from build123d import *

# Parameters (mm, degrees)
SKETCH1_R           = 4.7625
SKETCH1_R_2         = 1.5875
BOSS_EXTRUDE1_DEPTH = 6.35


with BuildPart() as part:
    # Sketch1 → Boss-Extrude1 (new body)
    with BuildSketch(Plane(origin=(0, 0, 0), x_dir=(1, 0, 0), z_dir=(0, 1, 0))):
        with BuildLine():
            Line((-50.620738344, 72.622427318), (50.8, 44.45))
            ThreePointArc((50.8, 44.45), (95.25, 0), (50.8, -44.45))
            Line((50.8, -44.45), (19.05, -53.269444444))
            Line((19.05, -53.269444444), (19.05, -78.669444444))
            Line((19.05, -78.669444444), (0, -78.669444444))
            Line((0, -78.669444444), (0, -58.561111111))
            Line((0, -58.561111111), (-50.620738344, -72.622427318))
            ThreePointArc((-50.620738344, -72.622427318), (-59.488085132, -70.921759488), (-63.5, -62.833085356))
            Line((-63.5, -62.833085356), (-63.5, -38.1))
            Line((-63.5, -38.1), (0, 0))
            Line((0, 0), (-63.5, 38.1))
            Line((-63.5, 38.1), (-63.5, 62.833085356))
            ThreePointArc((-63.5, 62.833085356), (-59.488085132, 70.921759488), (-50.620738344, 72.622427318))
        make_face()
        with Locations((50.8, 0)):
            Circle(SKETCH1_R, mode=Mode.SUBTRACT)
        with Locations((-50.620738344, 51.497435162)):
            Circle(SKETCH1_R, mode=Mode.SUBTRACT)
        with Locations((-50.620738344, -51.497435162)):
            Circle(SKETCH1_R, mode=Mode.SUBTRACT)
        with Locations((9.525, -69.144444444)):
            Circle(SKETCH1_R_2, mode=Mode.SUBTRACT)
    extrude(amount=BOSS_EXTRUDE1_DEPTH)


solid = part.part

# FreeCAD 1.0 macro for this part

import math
import FreeCAD as App
import Part
import Sketcher
Q = App.Units.Quantity

doc = App.newDocument("Part")
body = doc.addObject("PartDesign::Body", "Body")

# Sketch on XZ plane
sketch1 = body.newObject("Sketcher::SketchObject", "Sketch")
sketch1.AttachmentSupport = (doc.getObject("XZ_Plane"), [""])
sketch1.MapMode = "FlatFace"
sketch1.addGeometry([
    Part.LineSegment(App.Vector(50.8, -44.5, 0), App.Vector(-50.6, -72.6, 0)),  # 0
    Part.ArcOfCircle(Part.Circle(App.Vector(-53.3, -62.8, 0), App.Vector(0, 0, 1), 10.2), math.radians(180), math.radians(286)),  # 1
    Part.LineSegment(App.Vector(-63.5, -62.8, 0), App.Vector(-63.5, -38.1, 0)),  # 2
    Part.LineSegment(App.Vector(-63.5, -38.1, 0), App.Vector(0, 0, 0)),  # 3
    Part.LineSegment(App.Vector(0, 0, 0), App.Vector(-63.5, 38.1, 0)),  # 4
    Part.LineSegment(App.Vector(-63.5, 38.1, 0), App.Vector(-63.5, 62.8, 0)),  # 5
    Part.ArcOfCircle(Part.Circle(App.Vector(-53.3, 62.8, 0), App.Vector(0, 0, 1), 10.2), math.radians(74), math.radians(180)),  # 6
    Part.LineSegment(App.Vector(-50.6, 72.6, 0), App.Vector(0, 58.6, 0)),  # 7
    Part.LineSegment(App.Vector(0, 58.6, 0), App.Vector(0, 78.7, 0)),  # 8
    Part.LineSegment(App.Vector(0, 78.7, 0), App.Vector(19.1, 78.7, 0)),  # 9
    Part.LineSegment(App.Vector(19.1, 78.7, 0), App.Vector(19.1, 53.3, 0)),  # 10
    Part.LineSegment(App.Vector(19.1, 53.3, 0), App.Vector(50.8, 44.5, 0)),  # 11
    Part.ArcOfCircle(Part.Circle(App.Vector(50.8, 0, 0), App.Vector(0, 0, 1), 44.5), math.radians(-90), math.radians(90)),  # 12
    Part.Circle(App.Vector(9.5, 69.1, 0), App.Vector(0, 0, 1), 1.6),  # 13
    Part.Circle(App.Vector(-50.6, 51.5, 0), App.Vector(0, 0, 1), 4.8),  # 14
    Part.Circle(App.Vector(50.8, 0, 0), App.Vector(0, 0, 1), 4.8),  # 15
    Part.Circle(App.Vector(-50.6, -51.5, 0), App.Vector(0, 0, 1), 4.8),  # 16
], False)
sketch1.addConstraint([
    Sketcher.Constraint("Tangent", 0, 2, 1, 2),
    Sketcher.Constraint("Tangent", 1, 1, 2, 1),
    Sketcher.Constraint("Coincident", 2, 2, 3, 1),
    Sketcher.Constraint("Coincident", 3, 2, 4, 1),
    Sketcher.Constraint("Coincident", 4, 2, 5, 1),
    Sketcher.Constraint("Tangent", 5, 2, 6, 2),
    Sketcher.Constraint("Tangent", 6, 1, 7, 1),
    Sketcher.Constraint("Coincident", 7, 2, 8, 1),
    Sketcher.Constraint("Coincident", 8, 2, 9, 1),
    Sketcher.Constraint("Coincident", 9, 2, 10, 1),
    Sketcher.Constraint("Coincident", 10, 2, 11, 1),
    Sketcher.Constraint("Coincident", 11, 2, 12, 2),
    Sketcher.Constraint("Coincident", 12, 1, 0, 1),
    Sketcher.Constraint("Vertical", 2),
    Sketcher.Constraint("Vertical", 5),
    Sketcher.Constraint("Vertical", 8),
    Sketcher.Constraint("Horizontal", 9),
    Sketcher.Constraint("Vertical", 10),
    Sketcher.Constraint("Coincident", 3, 2, -1, 1),
    Sketcher.Constraint("Coincident", 15, 3, 12, 3),
    Sketcher.Constraint("Equal", 1, 6),
    Sketcher.Constraint("Equal", 14, 15),
    Sketcher.Constraint("Equal", 15, 16),
    Sketcher.Constraint("Symmetric", 1, 3, 6, 3, -1),
    Sketcher.Constraint("Symmetric", 14, 3, 16, 3, -1),
    Sketcher.Constraint("Symmetric", 11, 2, 12, 1, -1),
    Sketcher.Constraint("PointOnObject", 7, 2, -2),
    Sketcher.Constraint("Parallel", 7, 11),
    Sketcher.Constraint("Vertical", 16, 3, 0, 2),
    Sketcher.Constraint("Vertical", 0, 2, 6, 1),
    Sketcher.Constraint("Vertical", 15, 3, 11, 2),
    Sketcher.Constraint("Equal", 2, 5),
    Sketcher.Constraint("Radius", 1, Q("0.4 in")),
    Sketcher.Constraint("DistanceY", 10, 2, 10, 1, Q("1 in")),
    Sketcher.Constraint("Radius", 12, Q("1.75 in")),
    Sketcher.Constraint("Diameter", 13, Q("0.125 in")),
    Sketcher.Constraint("Diameter", 14, Q("0.375 in")),
    Sketcher.Constraint("DistanceX", -1, 1, 12, 3, Q("2 in")),
    Sketcher.Constraint("DistanceY", 2, 2, 4, 2, Q("3 in")),
    Sketcher.Constraint("DistanceX", 9, 1, 9, 2, Q("0.75 in")),
    Sketcher.Constraint("DistanceX", 1, 3, -1, 1, Q("2.1 in")),
    Sketcher.Constraint("DistanceX", -1, 1, 13, 3, Q("0.375 in")),
    Sketcher.Constraint("DistanceY", 13, 3, 8, 2, Q("0.375 in")),
    Sketcher.Constraint("DistanceY", 2, 1, 2, 2, 24.733085),
    Sketcher.Constraint("DistanceY", 14, 3, 6, 3, 11.33565),
])
pad1 = body.newObject("PartDesign::Pad", "Pad")
pad1.Profile = sketch1
pad1.Length = Q("0.25 in")
pad1.Reversed = True

doc.recompute()
